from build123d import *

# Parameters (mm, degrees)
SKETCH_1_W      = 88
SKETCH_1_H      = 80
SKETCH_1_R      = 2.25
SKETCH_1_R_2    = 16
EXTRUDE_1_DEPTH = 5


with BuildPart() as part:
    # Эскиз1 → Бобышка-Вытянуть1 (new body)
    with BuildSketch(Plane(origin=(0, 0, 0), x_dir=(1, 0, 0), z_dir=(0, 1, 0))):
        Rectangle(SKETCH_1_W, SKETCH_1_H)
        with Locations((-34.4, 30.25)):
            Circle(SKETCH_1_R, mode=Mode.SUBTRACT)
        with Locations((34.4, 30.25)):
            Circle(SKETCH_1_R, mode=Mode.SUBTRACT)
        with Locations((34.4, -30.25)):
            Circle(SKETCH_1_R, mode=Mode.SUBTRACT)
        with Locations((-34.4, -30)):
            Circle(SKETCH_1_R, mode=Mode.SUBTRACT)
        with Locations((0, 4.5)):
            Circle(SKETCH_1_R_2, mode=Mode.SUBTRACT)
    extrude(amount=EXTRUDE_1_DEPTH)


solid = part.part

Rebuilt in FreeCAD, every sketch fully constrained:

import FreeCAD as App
import Part
import Sketcher
Q = App.Units.Quantity

doc = App.newDocument("Part")
body = doc.addObject("PartDesign::Body", "Body")

# Sketch on XZ plane
sketch1 = doc.addObject("Sketcher::SketchObject", "Sketch")
body.addObject(sketch1)
sketch1.AttachmentSupport = (doc.XZ_Plane, [""])
sketch1.MapMode = "FlatFace"
sketch1.addGeometry([
    Part.LineSegment(App.Vector(-44, -40, 0), App.Vector(-44, 40, 0)),  # 0
    Part.LineSegment(App.Vector(-44, 40, 0), App.Vector(44, 40, 0)),  # 1
    Part.LineSegment(App.Vector(44, 40, 0), App.Vector(44, -40, 0)),  # 2
    Part.LineSegment(App.Vector(44, -40, 0), App.Vector(-44, -40, 0)),  # 3
    Part.Circle(App.Vector(-34.4, 30, 0), App.Vector(0, 0, 1), 2.2),  # 4
    Part.Circle(App.Vector(34.4, 30.2, 0), App.Vector(0, 0, 1), 2.2),  # 5
    Part.Circle(App.Vector(-34.4, -30.2, 0), App.Vector(0, 0, 1), 2.2),  # 6
    Part.Circle(App.Vector(0, -4.5, 0), App.Vector(0, 0, 1), 16),  # 7
    Part.Circle(App.Vector(34.4, -30.2, 0), App.Vector(0, 0, 1), 2.2),  # 8
], False)
sketch1.addConstraint([
    Sketcher.Constraint("Coincident", 0, 2, 1, 1),
    Sketcher.Constraint("Coincident", 1, 2, 2, 1),
    Sketcher.Constraint("Coincident", 2, 2, 3, 1),
    Sketcher.Constraint("Coincident", 3, 2, 0, 1),
    Sketcher.Constraint("Vertical", 0),
    Sketcher.Constraint("Horizontal", 1),
    Sketcher.Constraint("Vertical", 2),
    Sketcher.Constraint("Horizontal", 3),
    Sketcher.Constraint("Equal", 4, 5),
    Sketcher.Constraint("Equal", 5, 6),
    Sketcher.Constraint("Equal", 6, 8),
    Sketcher.Constraint("Symmetric", 5, 3, 6, 3, -1, 1),
    Sketcher.Constraint("Symmetric", 0, 2, 2, 2, -1, 1),
    Sketcher.Constraint("Symmetric", 6, 3, 8, 3, -2),
    Sketcher.Constraint("PointOnObject", 7, 3, -2),
    Sketcher.Constraint("Vertical", 4, 3, 6, 3),
    Sketcher.Constraint("Diameter", 7, Q("32 mm")),
    Sketcher.Constraint("Diameter", 4, Q("4.5 mm")),
    Sketcher.Constraint("DistanceX", 1, 1, 1, 2, Q("88 mm")),
    Sketcher.Constraint("DistanceY", 0, 1, 0, 2, Q("80 mm")),
    Sketcher.Constraint("DistanceY", -1, 1, 4, 3, Q("30 mm")),
    Sketcher.Constraint("DistanceX", 4, 3, -1, 1, Q("34.4 mm")),
    Sketcher.Constraint("DistanceY", 7, 3, -1, 1, Q("4.5 mm")),
    Sketcher.Constraint("DistanceY", 6, 3, 5, 3, Q("60.5 mm")),
])
pad1 = doc.addObject("PartDesign::Pad", "Pad")
body.addObject(pad1)
pad1.Profile = sketch1
pad1.Length = 5
pad1.Reversed = True

doc.recompute()
